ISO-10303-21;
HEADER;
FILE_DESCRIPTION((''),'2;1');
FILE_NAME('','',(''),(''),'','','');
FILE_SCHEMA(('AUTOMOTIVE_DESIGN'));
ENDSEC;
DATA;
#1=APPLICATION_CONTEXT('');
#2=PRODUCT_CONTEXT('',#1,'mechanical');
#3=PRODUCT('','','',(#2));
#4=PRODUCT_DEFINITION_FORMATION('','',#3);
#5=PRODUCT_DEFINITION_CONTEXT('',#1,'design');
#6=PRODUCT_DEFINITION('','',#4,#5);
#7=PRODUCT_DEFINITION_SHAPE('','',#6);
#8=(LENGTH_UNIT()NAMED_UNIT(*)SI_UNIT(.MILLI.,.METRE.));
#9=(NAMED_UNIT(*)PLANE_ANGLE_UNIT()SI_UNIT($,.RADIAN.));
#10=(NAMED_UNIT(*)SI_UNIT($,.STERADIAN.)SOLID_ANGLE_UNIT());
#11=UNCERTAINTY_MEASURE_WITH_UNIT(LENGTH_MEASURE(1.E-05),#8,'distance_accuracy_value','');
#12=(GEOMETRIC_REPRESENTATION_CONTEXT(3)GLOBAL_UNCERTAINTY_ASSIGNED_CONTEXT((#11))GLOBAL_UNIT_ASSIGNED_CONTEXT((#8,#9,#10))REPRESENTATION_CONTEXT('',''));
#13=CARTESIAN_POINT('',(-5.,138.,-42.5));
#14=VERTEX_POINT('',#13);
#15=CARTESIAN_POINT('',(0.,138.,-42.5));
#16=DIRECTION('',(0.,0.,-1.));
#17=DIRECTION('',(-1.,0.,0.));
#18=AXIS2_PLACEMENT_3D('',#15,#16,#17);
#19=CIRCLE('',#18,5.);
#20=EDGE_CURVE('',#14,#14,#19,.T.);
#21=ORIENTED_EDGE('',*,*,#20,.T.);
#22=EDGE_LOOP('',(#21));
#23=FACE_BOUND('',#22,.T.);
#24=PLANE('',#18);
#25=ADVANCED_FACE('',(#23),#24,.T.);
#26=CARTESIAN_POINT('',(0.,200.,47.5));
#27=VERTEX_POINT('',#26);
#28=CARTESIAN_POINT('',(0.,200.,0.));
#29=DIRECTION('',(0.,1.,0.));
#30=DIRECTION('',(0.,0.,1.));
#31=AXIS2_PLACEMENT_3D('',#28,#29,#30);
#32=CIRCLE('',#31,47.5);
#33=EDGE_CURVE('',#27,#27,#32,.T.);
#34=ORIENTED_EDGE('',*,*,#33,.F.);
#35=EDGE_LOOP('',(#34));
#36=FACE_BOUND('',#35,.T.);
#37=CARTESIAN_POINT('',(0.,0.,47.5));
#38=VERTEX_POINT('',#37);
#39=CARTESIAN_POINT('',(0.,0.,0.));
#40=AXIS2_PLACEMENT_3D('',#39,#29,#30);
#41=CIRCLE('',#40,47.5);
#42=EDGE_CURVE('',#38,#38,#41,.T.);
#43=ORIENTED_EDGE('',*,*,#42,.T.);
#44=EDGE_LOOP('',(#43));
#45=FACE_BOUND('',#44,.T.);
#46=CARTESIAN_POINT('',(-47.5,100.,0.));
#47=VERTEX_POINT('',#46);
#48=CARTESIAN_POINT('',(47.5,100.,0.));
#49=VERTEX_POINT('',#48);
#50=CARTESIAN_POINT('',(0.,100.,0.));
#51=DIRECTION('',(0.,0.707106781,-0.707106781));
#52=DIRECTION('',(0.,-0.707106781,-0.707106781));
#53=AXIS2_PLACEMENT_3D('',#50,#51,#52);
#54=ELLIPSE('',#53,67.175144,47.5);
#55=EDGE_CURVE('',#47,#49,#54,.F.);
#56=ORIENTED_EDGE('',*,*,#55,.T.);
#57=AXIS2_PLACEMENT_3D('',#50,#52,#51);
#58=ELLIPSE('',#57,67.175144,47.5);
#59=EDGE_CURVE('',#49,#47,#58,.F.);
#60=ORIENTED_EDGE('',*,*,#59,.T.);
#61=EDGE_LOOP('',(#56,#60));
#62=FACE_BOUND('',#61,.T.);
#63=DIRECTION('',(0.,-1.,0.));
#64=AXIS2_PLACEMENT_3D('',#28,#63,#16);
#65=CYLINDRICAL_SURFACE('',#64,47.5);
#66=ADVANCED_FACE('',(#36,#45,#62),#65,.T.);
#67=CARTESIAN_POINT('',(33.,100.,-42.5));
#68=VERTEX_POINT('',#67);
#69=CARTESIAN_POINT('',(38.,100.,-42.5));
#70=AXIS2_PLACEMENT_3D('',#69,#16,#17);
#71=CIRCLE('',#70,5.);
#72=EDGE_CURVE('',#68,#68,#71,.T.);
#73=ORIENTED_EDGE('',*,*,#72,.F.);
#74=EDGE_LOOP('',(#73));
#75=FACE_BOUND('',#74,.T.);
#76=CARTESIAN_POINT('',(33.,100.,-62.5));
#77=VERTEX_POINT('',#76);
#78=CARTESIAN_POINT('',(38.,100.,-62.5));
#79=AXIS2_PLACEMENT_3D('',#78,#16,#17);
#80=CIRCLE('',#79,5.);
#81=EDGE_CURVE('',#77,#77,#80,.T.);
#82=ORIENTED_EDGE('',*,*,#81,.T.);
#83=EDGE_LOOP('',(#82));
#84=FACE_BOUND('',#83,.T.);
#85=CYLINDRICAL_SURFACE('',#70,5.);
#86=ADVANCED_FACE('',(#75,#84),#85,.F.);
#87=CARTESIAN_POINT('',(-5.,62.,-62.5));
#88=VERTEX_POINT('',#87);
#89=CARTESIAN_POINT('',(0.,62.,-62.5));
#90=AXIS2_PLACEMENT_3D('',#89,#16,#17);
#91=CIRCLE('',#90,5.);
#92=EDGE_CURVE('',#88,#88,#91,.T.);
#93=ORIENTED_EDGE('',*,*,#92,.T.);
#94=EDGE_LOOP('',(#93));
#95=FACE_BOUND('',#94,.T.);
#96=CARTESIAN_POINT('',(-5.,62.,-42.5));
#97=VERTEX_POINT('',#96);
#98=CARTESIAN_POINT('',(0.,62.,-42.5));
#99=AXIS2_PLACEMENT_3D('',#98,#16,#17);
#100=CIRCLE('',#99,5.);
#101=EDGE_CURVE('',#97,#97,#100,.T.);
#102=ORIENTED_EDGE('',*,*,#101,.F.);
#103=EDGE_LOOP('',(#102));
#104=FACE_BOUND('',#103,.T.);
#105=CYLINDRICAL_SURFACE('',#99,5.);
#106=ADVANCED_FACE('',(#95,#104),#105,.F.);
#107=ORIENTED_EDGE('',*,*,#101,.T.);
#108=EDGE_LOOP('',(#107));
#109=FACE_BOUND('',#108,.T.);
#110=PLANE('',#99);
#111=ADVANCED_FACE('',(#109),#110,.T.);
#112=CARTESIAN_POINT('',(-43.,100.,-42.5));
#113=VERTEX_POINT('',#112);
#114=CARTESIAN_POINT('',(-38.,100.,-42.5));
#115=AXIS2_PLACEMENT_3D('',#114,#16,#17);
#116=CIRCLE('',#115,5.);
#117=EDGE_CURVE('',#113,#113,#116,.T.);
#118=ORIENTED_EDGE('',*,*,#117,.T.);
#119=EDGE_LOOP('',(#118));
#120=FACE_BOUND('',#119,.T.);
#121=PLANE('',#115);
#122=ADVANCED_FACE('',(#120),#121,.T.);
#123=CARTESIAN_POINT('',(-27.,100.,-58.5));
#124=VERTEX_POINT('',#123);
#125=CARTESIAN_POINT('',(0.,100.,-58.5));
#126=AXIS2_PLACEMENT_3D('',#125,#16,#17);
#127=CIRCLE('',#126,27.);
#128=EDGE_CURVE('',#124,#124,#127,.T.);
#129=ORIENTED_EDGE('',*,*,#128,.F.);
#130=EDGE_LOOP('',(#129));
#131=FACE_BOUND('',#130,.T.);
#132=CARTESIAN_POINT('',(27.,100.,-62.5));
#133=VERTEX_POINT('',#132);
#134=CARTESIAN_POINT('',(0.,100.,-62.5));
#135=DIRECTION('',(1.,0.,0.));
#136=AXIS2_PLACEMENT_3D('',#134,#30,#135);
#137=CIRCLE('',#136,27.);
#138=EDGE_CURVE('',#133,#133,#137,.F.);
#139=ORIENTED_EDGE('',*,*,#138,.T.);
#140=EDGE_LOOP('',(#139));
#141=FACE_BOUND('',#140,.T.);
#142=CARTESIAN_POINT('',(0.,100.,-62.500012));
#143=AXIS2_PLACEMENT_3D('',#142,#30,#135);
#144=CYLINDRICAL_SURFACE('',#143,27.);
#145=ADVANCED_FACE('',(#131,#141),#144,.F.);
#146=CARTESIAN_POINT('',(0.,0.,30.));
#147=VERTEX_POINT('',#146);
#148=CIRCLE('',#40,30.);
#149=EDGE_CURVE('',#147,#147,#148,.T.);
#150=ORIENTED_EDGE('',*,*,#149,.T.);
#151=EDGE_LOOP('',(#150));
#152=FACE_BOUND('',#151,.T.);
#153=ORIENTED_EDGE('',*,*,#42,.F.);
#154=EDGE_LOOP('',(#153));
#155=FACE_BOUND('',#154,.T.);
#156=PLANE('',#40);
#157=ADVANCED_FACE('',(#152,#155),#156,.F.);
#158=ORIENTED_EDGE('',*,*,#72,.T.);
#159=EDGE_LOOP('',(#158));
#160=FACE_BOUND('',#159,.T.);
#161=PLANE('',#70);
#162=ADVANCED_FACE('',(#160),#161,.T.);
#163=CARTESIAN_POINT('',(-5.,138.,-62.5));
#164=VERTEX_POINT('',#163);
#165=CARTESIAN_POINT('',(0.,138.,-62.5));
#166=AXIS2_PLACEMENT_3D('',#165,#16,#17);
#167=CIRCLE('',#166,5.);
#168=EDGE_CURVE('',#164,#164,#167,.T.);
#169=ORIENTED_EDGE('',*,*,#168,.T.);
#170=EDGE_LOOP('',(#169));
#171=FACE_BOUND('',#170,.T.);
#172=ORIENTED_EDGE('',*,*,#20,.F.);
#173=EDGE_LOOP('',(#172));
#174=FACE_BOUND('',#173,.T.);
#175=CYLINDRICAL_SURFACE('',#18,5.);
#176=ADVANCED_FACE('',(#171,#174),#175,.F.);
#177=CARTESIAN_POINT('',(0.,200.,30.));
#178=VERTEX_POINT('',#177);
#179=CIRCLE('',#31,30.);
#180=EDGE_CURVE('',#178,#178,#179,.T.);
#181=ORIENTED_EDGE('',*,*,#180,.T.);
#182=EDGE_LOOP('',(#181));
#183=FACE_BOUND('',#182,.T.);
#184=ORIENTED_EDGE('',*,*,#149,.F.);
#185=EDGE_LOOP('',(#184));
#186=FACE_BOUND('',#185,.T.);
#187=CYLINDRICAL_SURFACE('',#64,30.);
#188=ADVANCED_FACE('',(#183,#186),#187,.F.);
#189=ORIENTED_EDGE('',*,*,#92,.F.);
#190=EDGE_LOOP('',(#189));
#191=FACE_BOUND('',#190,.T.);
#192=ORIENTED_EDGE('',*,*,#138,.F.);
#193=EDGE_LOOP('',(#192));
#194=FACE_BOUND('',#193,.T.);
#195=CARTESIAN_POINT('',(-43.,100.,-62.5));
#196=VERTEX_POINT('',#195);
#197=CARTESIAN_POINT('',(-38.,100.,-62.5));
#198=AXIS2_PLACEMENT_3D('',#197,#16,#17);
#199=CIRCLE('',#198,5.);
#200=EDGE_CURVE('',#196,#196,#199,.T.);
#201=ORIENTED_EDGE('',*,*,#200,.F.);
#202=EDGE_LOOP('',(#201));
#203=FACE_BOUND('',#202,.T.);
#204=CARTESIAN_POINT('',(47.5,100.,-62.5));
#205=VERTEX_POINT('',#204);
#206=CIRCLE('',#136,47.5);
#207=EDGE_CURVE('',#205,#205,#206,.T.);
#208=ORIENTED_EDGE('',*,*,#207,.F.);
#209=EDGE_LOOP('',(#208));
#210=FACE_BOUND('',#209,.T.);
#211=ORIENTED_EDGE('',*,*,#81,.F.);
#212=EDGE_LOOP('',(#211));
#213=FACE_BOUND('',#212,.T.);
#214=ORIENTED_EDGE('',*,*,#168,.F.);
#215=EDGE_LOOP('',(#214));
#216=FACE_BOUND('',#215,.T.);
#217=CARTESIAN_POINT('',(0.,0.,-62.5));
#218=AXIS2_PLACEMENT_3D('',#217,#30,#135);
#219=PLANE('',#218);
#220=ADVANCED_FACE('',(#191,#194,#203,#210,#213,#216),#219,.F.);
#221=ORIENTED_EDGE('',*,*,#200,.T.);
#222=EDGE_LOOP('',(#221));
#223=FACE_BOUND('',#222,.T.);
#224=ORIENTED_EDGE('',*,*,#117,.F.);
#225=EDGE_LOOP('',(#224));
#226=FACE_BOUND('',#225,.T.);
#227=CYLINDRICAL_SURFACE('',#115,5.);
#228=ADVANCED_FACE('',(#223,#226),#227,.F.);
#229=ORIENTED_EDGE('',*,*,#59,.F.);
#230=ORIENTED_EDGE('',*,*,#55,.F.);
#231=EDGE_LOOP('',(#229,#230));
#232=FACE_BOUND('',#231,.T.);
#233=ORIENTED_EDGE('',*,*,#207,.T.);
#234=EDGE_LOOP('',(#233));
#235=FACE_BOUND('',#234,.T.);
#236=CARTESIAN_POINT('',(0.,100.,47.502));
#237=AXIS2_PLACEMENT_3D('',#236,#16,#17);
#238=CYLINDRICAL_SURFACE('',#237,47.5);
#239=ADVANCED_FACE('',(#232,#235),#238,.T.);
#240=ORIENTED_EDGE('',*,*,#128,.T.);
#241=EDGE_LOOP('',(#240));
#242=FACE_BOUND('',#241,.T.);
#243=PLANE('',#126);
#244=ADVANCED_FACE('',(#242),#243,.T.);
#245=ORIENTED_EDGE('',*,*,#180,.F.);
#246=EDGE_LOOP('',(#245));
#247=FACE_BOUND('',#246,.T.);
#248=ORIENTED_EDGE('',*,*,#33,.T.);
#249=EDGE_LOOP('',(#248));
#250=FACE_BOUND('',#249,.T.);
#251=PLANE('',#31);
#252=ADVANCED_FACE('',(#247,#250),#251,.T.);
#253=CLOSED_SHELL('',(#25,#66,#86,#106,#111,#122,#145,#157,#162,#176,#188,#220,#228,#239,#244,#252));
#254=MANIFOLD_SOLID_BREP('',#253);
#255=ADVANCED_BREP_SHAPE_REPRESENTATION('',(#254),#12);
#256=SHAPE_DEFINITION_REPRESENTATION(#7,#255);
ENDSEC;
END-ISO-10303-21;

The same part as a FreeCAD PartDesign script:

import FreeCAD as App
import Part
import Sketcher
from FreeCAD import Vector
Q = App.Units.Quantity

doc = App.newDocument("Part")
body = doc.addObject("PartDesign::Body", "Body")

sketch1 = body.newObject("Sketcher::SketchObject", "Sketch")
sketch1.AttachmentSupport = (doc.getObject("XZ_Plane"), [""])
sketch1.MapMode = "FlatFace"
sketch1.addGeometry(Part.Circle(Vector(0, 0, 0), Vector(0, 0, 1), 48), False)
sketch1.addGeometry(Part.Circle(Vector(0, 0, 0), Vector(0, 0, 1), 30), False)
sketch1.addConstraint(Sketcher.Constraint("Coincident", 0, 3, -1, 1))
sketch1.addConstraint(Sketcher.Constraint("Coincident", 1, 3, -1, 1))
sketch1.addConstraint(Sketcher.Constraint("Diameter", 0, Q("95 mm")))
sketch1.addConstraint(Sketcher.Constraint("Diameter", 1, Q("60 mm")))
pad1 = body.newObject("PartDesign::Pad", "Pad")
pad1.Profile = sketch1
pad1.Length = 200
pad1.Reversed = True

sketch2 = body.newObject("Sketcher::SketchObject", "Sketch001")
sketch2.AttachmentSupport = (doc.getObject("XY_Plane"), [""])
sketch2.MapMode = "FlatFace"
sketch2.AttachmentOffset = App.Placement(Vector(0, 0, -62.5), App.Rotation())
sketch2.addGeometry(Part.Circle(Vector(0, 100, 0), Vector(0, 0, 1), 27), False)
sketch2.addConstraint(Sketcher.Constraint("PointOnObject", 0, 3, -2))
sketch2.addConstraint(Sketcher.Constraint("Diameter", 0, Q("54 mm")))
sketch2.addConstraint(Sketcher.Constraint("DistanceY", -1, 1, 0, 3, Q("100 mm")))
pad2 = body.newObject("PartDesign::Pad", "Pad001")
pad2.Profile = sketch2
pad2.Type = "UpToFirst"

sketch3 = body.newObject("Sketcher::SketchObject", "Sketch002")
sketch3.AttachmentSupport = (doc.getObject("XY_Plane"), [""])
sketch3.MapMode = "FlatFace"
sketch3.AttachmentOffset = App.Placement(Vector(0, 0, -62.5), App.Rotation())
sketch3.addGeometry(Part.Circle(Vector(0, 100, 0), Vector(0, 0, 1), 48), False)
sketch3.addGeometry(Part.Circle(Vector(0, 100, 0), Vector(0, 0, 1), 27), False)
sketch3.addConstraint(Sketcher.Constraint("Coincident", 1, 3, 0, 3))
sketch3.addConstraint(Sketcher.Constraint("PointOnObject", 0, 3, -2))
sketch3.addConstraint(Sketcher.Constraint("Diameter", 0, Q("95 mm")))
sketch3.addConstraint(Sketcher.Constraint("Diameter", 1, Q("54 mm")))
sketch3.addConstraint(Sketcher.Constraint("DistanceY", -1, 1, 0, 3, Q("100 mm")))
pad3 = body.newObject("PartDesign::Pad", "Pad002")
pad3.Profile = sketch3
pad3.Type = "UpToFirst"

sketch4 = body.newObject("Sketcher::SketchObject", "Sketch003")
sketch4.AttachmentSupport = (doc.getObject("XY_Plane"), [""])
sketch4.MapMode = "FlatFace"
sketch4.AttachmentOffset = App.Placement(Vector(0, 0, -62.5), App.Rotation())
sketch4.addGeometry(Part.Circle(Vector(0, 100, 0), Vector(0, 0, 1), 27), False)
sketch4.addConstraint(Sketcher.Constraint("PointOnObject", 0, 3, -2))
sketch4.addConstraint(Sketcher.Constraint("Diameter", 0, Q("54 mm")))
sketch4.addConstraint(Sketcher.Constraint("DistanceY", -1, 1, 0, 3, Q("100 mm")))
pocket1 = body.newObject("PartDesign::Pocket", "Pocket")
pocket1.Profile = sketch4
pocket1.Type = "TwoLengths"
pocket1.Length = 1
pocket1.Length2 = 4

sketch5 = body.newObject("Sketcher::SketchObject", "Sketch004")
sketch5.AttachmentSupport = (doc.getObject("XY_Plane"), [""])
sketch5.MapMode = "FlatFace"
sketch5.AttachmentOffset = App.Placement(Vector(0, 0, -62.5), App.Rotation())
sketch5.addGeometry(Part.Circle(Vector(0, 138, 0), Vector(0, 0, 1), 5), False)
sketch5.addGeometry(Part.Circle(Vector(-38, 100, 0), Vector(0, 0, 1), 5), False)
sketch5.addGeometry(Part.Circle(Vector(0, 62, 0), Vector(0, 0, 1), 5), False)
sketch5.addGeometry(Part.Circle(Vector(38, 100, 0), Vector(0, 0, 1), 5), False)
sketch5.addConstraint(Sketcher.Constraint("Equal", 0, 1))
sketch5.addConstraint(Sketcher.Constraint("Equal", 1, 2))
sketch5.addConstraint(Sketcher.Constraint("Equal", 2, 3))
sketch5.addConstraint(Sketcher.Constraint("Symmetric", 1, 3, 3, 3, -2))
sketch5.addConstraint(Sketcher.Constraint("PointOnObject", 0, 3, -2))
sketch5.addConstraint(Sketcher.Constraint("PointOnObject", 2, 3, -2))
sketch5.addConstraint(Sketcher.Constraint("Diameter", 0, Q("10 mm")))
sketch5.addConstraint(Sketcher.Constraint("DistanceY", -1, 1, 0, 3, Q("138 mm")))
sketch5.addConstraint(Sketcher.Constraint("DistanceX", 1, 3, -1, 1, Q("38 mm")))
sketch5.addConstraint(Sketcher.Constraint("DistanceY", -1, 1, 1, 3, Q("100 mm")))
sketch5.addConstraint(Sketcher.Constraint("DistanceY", -1, 1, 2, 3, Q("62 mm")))
pocket2 = body.newObject("PartDesign::Pocket", "Pocket001")
pocket2.Profile = sketch5
pocket2.Length = 20
pocket2.Reversed = True

doc.recompute()
